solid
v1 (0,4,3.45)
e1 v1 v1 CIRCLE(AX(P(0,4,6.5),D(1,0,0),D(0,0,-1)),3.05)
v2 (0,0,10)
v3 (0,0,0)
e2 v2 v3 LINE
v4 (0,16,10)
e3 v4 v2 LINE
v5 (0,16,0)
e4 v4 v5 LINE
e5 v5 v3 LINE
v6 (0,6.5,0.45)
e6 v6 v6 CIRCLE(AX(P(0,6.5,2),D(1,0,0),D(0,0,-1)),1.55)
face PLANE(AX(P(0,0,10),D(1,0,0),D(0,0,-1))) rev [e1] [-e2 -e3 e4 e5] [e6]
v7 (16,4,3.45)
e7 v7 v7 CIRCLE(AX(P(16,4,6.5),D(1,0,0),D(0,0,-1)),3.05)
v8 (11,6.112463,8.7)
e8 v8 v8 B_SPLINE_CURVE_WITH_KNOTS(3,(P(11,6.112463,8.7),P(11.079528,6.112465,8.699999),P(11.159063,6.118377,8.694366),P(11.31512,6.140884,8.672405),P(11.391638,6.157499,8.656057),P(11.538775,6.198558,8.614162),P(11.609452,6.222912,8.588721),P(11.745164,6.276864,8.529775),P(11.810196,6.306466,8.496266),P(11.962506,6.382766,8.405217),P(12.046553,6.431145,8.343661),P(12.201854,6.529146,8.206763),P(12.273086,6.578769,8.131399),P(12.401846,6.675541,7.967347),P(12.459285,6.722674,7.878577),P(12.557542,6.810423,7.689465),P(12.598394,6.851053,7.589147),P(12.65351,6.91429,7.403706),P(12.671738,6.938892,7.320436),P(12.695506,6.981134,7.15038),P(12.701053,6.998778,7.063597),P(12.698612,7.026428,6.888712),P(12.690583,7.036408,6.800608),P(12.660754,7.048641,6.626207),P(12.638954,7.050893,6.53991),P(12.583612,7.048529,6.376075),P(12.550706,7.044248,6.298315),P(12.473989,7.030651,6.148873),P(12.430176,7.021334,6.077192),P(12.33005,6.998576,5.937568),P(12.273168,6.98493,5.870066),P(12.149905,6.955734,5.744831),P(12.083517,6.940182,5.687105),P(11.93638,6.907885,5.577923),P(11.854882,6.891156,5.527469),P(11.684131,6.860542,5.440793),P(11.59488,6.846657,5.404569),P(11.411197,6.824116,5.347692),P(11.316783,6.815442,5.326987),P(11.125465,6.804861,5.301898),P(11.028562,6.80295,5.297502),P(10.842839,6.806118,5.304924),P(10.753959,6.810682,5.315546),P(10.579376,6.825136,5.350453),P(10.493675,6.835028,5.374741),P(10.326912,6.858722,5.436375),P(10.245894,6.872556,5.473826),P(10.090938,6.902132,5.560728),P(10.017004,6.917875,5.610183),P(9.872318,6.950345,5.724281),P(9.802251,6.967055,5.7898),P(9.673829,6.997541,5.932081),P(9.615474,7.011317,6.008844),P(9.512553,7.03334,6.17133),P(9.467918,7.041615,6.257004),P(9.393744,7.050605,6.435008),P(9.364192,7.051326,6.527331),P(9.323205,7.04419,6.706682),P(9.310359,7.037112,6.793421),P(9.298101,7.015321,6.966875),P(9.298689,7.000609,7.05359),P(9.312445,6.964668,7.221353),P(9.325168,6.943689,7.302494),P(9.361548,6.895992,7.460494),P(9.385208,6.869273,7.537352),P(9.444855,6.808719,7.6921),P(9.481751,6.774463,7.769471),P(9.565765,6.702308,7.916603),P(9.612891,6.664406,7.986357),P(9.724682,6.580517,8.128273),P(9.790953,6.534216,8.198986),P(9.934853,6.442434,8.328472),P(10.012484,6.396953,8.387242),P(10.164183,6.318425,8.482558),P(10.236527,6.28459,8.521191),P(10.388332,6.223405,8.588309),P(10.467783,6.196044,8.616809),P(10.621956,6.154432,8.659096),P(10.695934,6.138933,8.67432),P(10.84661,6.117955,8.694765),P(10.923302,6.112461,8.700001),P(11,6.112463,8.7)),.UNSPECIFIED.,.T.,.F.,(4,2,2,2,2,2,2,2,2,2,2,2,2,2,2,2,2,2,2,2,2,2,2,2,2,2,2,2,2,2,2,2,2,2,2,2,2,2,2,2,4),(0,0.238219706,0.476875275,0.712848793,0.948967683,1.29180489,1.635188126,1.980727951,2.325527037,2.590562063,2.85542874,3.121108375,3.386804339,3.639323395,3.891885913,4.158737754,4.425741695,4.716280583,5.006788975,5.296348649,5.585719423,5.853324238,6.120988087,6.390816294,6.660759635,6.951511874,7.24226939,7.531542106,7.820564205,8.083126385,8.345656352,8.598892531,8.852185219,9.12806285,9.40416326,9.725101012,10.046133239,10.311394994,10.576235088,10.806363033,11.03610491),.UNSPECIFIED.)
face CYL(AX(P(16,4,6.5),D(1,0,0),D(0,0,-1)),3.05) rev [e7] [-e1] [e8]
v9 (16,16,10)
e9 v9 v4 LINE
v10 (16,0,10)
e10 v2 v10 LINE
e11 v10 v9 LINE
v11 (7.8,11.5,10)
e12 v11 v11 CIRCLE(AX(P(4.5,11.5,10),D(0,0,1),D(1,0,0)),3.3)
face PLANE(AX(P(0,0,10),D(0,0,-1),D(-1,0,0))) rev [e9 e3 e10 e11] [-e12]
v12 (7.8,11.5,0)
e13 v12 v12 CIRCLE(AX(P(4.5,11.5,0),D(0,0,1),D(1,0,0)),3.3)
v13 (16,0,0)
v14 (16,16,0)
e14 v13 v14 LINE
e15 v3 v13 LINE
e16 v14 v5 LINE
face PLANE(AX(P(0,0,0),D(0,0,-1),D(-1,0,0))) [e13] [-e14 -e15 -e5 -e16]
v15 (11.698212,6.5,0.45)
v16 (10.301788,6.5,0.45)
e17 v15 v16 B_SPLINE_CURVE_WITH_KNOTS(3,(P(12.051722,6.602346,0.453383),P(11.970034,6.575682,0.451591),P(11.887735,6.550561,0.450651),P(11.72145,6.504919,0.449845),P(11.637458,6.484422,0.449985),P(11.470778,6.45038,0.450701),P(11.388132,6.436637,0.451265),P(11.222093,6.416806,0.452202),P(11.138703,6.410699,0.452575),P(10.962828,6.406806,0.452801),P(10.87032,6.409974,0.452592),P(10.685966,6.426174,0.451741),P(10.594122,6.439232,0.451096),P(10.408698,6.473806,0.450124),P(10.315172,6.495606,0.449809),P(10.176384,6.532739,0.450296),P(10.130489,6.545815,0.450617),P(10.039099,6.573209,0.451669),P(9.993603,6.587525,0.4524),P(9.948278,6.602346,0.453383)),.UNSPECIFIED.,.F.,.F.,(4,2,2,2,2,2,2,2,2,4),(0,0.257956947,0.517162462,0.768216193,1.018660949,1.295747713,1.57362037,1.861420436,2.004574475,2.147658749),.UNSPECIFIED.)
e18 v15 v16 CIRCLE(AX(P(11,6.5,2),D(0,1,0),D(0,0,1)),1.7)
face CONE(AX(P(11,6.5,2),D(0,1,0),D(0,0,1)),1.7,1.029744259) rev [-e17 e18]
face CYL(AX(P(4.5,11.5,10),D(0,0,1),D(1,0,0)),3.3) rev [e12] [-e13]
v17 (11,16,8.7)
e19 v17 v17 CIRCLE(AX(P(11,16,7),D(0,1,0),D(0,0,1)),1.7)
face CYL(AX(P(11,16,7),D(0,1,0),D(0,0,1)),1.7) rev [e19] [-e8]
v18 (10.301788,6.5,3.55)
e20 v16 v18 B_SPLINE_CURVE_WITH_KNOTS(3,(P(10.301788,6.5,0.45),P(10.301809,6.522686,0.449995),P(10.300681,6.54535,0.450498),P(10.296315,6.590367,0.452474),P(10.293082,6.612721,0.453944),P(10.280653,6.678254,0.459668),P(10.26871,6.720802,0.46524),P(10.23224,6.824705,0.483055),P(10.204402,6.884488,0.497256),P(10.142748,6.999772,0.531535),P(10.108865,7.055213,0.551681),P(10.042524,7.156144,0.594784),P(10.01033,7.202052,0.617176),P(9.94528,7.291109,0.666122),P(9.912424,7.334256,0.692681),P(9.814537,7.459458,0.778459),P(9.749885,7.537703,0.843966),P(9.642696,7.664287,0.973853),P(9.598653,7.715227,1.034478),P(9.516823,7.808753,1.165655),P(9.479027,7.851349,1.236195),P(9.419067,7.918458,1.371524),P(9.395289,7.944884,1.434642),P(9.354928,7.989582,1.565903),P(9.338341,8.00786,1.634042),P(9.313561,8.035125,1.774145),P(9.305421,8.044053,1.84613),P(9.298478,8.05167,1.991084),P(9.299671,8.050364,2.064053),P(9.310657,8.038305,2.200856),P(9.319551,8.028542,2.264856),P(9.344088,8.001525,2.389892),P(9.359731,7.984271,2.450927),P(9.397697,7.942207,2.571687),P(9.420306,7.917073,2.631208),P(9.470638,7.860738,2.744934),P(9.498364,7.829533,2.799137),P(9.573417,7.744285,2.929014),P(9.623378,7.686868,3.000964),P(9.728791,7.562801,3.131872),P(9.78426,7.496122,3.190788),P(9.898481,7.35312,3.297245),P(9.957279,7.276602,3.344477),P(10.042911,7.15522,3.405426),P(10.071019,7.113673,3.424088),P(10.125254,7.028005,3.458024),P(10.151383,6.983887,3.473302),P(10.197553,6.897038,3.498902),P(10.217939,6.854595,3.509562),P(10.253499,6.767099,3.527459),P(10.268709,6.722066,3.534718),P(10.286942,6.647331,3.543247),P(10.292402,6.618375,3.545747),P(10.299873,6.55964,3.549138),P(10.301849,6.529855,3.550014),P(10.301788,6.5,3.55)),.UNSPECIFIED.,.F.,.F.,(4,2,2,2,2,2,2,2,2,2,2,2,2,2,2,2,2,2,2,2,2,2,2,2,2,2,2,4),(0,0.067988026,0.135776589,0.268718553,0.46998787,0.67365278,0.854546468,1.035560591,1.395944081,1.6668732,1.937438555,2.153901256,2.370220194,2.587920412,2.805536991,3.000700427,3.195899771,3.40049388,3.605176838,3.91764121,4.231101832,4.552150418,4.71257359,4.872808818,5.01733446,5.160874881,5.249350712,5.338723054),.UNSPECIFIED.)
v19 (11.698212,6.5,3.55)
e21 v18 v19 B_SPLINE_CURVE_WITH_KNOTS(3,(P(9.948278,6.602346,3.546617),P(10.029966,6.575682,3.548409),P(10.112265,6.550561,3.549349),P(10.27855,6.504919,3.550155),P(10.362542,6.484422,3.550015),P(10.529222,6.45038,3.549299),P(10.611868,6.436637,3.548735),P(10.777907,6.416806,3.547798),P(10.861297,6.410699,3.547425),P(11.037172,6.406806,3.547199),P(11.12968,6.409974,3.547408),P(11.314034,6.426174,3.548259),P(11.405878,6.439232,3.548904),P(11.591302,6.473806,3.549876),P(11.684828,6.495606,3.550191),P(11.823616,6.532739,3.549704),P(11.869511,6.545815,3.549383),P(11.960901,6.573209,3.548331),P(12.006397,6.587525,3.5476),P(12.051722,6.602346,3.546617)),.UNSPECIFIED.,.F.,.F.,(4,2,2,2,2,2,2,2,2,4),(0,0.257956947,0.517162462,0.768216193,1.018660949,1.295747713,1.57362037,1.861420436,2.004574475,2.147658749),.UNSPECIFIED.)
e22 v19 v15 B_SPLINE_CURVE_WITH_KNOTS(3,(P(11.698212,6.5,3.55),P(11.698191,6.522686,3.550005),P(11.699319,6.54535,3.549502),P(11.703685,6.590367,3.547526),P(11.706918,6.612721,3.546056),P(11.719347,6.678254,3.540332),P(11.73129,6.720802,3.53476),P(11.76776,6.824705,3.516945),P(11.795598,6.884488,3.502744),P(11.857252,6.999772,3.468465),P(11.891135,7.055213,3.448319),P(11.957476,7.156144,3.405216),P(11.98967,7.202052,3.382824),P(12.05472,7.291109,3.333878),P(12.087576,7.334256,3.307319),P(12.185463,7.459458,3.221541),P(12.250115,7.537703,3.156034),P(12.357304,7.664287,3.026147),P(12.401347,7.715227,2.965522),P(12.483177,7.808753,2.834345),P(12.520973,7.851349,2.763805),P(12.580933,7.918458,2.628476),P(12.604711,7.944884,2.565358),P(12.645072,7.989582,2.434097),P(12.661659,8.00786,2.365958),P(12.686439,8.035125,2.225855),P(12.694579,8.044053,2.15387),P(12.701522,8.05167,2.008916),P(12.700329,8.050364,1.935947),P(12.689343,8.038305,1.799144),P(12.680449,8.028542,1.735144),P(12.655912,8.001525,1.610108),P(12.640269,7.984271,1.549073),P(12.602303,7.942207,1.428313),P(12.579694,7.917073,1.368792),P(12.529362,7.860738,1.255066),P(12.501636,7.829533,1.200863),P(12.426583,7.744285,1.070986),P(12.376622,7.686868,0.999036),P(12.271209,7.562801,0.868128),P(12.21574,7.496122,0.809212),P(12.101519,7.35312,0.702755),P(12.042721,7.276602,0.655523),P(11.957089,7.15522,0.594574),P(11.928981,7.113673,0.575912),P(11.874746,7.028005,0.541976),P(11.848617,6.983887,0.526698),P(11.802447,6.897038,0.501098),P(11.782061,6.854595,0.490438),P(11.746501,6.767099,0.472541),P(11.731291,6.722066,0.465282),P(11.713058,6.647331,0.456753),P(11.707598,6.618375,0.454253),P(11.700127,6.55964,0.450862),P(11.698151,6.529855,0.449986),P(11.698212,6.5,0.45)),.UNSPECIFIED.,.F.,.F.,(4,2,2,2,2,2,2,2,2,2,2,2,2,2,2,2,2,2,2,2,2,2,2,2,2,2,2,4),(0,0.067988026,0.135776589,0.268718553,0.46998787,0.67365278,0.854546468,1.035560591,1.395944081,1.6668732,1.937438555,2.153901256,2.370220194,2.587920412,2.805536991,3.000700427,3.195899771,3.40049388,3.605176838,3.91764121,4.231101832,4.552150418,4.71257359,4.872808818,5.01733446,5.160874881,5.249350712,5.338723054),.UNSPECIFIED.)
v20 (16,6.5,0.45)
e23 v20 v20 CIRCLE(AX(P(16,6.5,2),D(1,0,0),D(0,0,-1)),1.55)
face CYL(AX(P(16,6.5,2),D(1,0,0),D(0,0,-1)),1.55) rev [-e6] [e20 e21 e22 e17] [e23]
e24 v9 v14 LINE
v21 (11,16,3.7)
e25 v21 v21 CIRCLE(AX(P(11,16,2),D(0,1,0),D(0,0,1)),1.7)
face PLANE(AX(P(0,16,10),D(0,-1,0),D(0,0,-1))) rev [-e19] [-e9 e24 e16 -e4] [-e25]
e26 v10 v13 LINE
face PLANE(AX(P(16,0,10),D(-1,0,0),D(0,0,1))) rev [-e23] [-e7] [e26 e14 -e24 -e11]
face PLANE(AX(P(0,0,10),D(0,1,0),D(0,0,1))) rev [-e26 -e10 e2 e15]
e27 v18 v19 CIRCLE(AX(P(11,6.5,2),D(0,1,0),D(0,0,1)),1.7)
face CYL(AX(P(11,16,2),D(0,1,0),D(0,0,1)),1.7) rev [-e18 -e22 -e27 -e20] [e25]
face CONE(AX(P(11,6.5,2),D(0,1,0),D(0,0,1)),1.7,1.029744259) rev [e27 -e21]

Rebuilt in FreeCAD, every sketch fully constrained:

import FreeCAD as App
import Part
import Sketcher
Q = App.Units.Quantity

doc = App.newDocument("Part")
params = doc.addObject("Spreadsheet::Sheet", "Params")
for row, (alias, value) in enumerate([
    ("sketch1_width", "16 mm"),
    ("pad1_length", "10 mm"),
    ("sketch2_diameter", "6.6 mm"),
    ("hole_diameter", "6.6 mm"),
    ("sketch3_diameter", "6.1 mm"),
    ("hole2_diameter", "6.1 mm"),
    ("sketch4_diameter", "3.1 mm"),
    ("hole3_diameter", "3.1 mm"),
    ("sketch5_diameter", "3.4 mm"),
    ("hole4_diameter", "3.4 mm"),
    ("hole4_depth", "11 mm"),
    ("sketch6_diameter", "3.4 mm"),
    ("hole5_diameter", "3.4 mm"),
    ("hole5_depth", "9.5 mm"),
], start=1):
    params.set(f"A{row}", alias)
    params.set(f"B{row}", "=" + value)
    params.setAlias(f"B{row}", alias)

body = doc.addObject("PartDesign::Body", "Body")

sketch1 = body.newObject("Sketcher::SketchObject", "Sketch")
sketch1.AttachmentSupport = (doc.getObject("XY_Plane"), [""])
sketch1.MapMode = "FlatFace"
sketch1.addGeometry([
    Part.LineSegment(App.Vector(0, 16, 0), App.Vector(0, 0, 0)),
    Part.LineSegment(App.Vector(0, 0, 0), App.Vector(16, 0, 0)),
    Part.LineSegment(App.Vector(16, 0, 0), App.Vector(16, 16, 0)),
    Part.LineSegment(App.Vector(16, 16, 0), App.Vector(0, 16, 0)),
], False)
sketch1.addConstraint([
    Sketcher.Constraint("Coincident", 0, 2, 1, 1),
    Sketcher.Constraint("Coincident", 1, 2, 2, 1),
    Sketcher.Constraint("Coincident", 2, 2, 3, 1),
    Sketcher.Constraint("Coincident", 3, 2, 0, 1),
    Sketcher.Constraint("Vertical", 0),
    Sketcher.Constraint("Horizontal", 1),
    Sketcher.Constraint("Vertical", 2),
    Sketcher.Constraint("Horizontal", 3),
    Sketcher.Constraint("Coincident", 0, 2, -1, 1),
    Sketcher.Constraint("Equal", 3, 0),
    Sketcher.Constraint("DistanceX", 1, 1, 1, 2, Q("16 mm")),
])
sketch1.setExpression("Constraints[10]", "Params.sketch1_width")
pad1 = body.newObject("PartDesign::Pad", "Pad")
pad1.Profile = sketch1
pad1.setExpression("Length", "Params.pad1_length")

sketch2 = body.newObject("Sketcher::SketchObject", "Sketch001")
sketch2.AttachmentSupport = (doc.getObject("XY_Plane"), [""])
sketch2.MapMode = "FlatFace"
sketch2.AttachmentOffset = App.Placement(App.Vector(0, 0, 10), App.Rotation())
sketch2.addGeometry(Part.Circle(App.Vector(4.5, 11.5, 0), App.Vector(0, 0, 1), 3.3), False)
sketch2.addConstraint([
    Sketcher.Constraint("Diameter", 0, Q("6.6 mm")),
    Sketcher.Constraint("DistanceX", -1, 1, 0, 3, Q("4.5 mm")),
    Sketcher.Constraint("DistanceY", -1, 1, 0, 3, Q("11.5 mm")),
])
sketch2.setExpression("Constraints[0]", "Params.sketch2_diameter")
doc.recompute()
hole = body.newObject("PartDesign::Hole", "Hole")
hole.Profile = sketch2
hole.ThreadType = "None"
hole.setExpression("Diameter", "Params.hole_diameter")
hole.DepthType = "ThroughAll"

sketch3 = body.newObject("Sketcher::SketchObject", "Sketch002")
sketch3.AttachmentSupport = (doc.getObject("YZ_Plane"), [""])
sketch3.MapMode = "FlatFace"
sketch3.AttachmentOffset = App.Placement(App.Vector(0, 0, 16), App.Rotation())
sketch3.addGeometry(Part.Circle(App.Vector(4, 6.5, 0), App.Vector(0, 0, 1), 3), False)
sketch3.addConstraint([
    Sketcher.Constraint("Diameter", 0, Q("6.1 mm")),
    Sketcher.Constraint("DistanceX", -1, 1, 0, 3, Q("4 mm")),
    Sketcher.Constraint("DistanceY", -1, 1, 0, 3, Q("6.5 mm")),
])
sketch3.setExpression("Constraints[0]", "Params.sketch3_diameter")
doc.recompute()
hole2 = body.newObject("PartDesign::Hole", "Hole001")
hole2.Profile = sketch3
hole2.ThreadType = "None"
hole2.setExpression("Diameter", "Params.hole2_diameter")
hole2.DepthType = "ThroughAll"

sketch4 = body.newObject("Sketcher::SketchObject", "Sketch003")
sketch4.AttachmentSupport = (doc.getObject("YZ_Plane"), [""])
sketch4.MapMode = "FlatFace"
sketch4.AttachmentOffset = App.Placement(App.Vector(0, 0, 16), App.Rotation())
sketch4.addGeometry(Part.Circle(App.Vector(6.5, 2, 0), App.Vector(0, 0, 1), 1.6), False)
sketch4.addConstraint([
    Sketcher.Constraint("Diameter", 0, Q("3.1 mm")),
    Sketcher.Constraint("DistanceY", -1, 1, 0, 3, Q("2 mm")),
    Sketcher.Constraint("DistanceX", -1, 1, 0, 3, Q("6.5 mm")),
])
sketch4.setExpression("Constraints[0]", "Params.sketch4_diameter")
doc.recompute()
hole3 = body.newObject("PartDesign::Hole", "Hole002")
hole3.Profile = sketch4
hole3.ThreadType = "None"
hole3.setExpression("Diameter", "Params.hole3_diameter")
hole3.DepthType = "ThroughAll"

sketch5 = body.newObject("Sketcher::SketchObject", "Sketch004")
sketch5.AttachmentSupport = (doc.getObject("XZ_Plane"), [""])
sketch5.MapMode = "FlatFace"
sketch5.AttachmentOffset = App.Placement(App.Vector(0, 0, -16), App.Rotation())
sketch5.addGeometry(Part.Circle(App.Vector(11, 7, 0), App.Vector(0, 0, 1), 1.7), False)
sketch5.addConstraint([
    Sketcher.Constraint("Diameter", 0, Q("3.4 mm")),
    Sketcher.Constraint("DistanceX", -1, 1, 0, 3, Q("11 mm")),
    Sketcher.Constraint("DistanceY", -1, 1, 0, 3, Q("7 mm")),
])
sketch5.setExpression("Constraints[0]", "Params.sketch5_diameter")
doc.recompute()
hole4 = body.newObject("PartDesign::Hole", "Hole003")
hole4.Profile = sketch5
hole4.ThreadType = "None"
hole4.setExpression("Diameter", "Params.hole4_diameter")
hole4.DepthType = "Dimension"
hole4.setExpression("Depth", "Params.hole4_depth")
hole4.DrillPoint = "Angled"
hole4.DrillPointAngle = 118
hole4.Reversed = True

sketch6 = body.newObject("Sketcher::SketchObject", "Sketch005")
sketch6.AttachmentSupport = (doc.getObject("XZ_Plane"), [""])
sketch6.MapMode = "FlatFace"
sketch6.AttachmentOffset = App.Placement(App.Vector(0, 0, -16), App.Rotation())
sketch6.addGeometry(Part.Circle(App.Vector(11, 2, 0), App.Vector(0, 0, 1), 1.7), False)
sketch6.addConstraint([
    Sketcher.Constraint("Diameter", 0, Q("3.4 mm")),
    Sketcher.Constraint("DistanceX", -1, 1, 0, 3, Q("11 mm")),
    Sketcher.Constraint("DistanceY", -1, 1, 0, 3, Q("2 mm")),
])
sketch6.setExpression("Constraints[0]", "Params.sketch6_diameter")
doc.recompute()
hole5 = body.newObject("PartDesign::Hole", "Hole004")
hole5.Profile = sketch6
hole5.ThreadType = "None"
hole5.setExpression("Diameter", "Params.hole5_diameter")
hole5.DepthType = "Dimension"
hole5.setExpression("Depth", "Params.hole5_depth")
hole5.DrillPoint = "Angled"
hole5.DrillPointAngle = 118
hole5.Reversed = True

doc.recompute()
